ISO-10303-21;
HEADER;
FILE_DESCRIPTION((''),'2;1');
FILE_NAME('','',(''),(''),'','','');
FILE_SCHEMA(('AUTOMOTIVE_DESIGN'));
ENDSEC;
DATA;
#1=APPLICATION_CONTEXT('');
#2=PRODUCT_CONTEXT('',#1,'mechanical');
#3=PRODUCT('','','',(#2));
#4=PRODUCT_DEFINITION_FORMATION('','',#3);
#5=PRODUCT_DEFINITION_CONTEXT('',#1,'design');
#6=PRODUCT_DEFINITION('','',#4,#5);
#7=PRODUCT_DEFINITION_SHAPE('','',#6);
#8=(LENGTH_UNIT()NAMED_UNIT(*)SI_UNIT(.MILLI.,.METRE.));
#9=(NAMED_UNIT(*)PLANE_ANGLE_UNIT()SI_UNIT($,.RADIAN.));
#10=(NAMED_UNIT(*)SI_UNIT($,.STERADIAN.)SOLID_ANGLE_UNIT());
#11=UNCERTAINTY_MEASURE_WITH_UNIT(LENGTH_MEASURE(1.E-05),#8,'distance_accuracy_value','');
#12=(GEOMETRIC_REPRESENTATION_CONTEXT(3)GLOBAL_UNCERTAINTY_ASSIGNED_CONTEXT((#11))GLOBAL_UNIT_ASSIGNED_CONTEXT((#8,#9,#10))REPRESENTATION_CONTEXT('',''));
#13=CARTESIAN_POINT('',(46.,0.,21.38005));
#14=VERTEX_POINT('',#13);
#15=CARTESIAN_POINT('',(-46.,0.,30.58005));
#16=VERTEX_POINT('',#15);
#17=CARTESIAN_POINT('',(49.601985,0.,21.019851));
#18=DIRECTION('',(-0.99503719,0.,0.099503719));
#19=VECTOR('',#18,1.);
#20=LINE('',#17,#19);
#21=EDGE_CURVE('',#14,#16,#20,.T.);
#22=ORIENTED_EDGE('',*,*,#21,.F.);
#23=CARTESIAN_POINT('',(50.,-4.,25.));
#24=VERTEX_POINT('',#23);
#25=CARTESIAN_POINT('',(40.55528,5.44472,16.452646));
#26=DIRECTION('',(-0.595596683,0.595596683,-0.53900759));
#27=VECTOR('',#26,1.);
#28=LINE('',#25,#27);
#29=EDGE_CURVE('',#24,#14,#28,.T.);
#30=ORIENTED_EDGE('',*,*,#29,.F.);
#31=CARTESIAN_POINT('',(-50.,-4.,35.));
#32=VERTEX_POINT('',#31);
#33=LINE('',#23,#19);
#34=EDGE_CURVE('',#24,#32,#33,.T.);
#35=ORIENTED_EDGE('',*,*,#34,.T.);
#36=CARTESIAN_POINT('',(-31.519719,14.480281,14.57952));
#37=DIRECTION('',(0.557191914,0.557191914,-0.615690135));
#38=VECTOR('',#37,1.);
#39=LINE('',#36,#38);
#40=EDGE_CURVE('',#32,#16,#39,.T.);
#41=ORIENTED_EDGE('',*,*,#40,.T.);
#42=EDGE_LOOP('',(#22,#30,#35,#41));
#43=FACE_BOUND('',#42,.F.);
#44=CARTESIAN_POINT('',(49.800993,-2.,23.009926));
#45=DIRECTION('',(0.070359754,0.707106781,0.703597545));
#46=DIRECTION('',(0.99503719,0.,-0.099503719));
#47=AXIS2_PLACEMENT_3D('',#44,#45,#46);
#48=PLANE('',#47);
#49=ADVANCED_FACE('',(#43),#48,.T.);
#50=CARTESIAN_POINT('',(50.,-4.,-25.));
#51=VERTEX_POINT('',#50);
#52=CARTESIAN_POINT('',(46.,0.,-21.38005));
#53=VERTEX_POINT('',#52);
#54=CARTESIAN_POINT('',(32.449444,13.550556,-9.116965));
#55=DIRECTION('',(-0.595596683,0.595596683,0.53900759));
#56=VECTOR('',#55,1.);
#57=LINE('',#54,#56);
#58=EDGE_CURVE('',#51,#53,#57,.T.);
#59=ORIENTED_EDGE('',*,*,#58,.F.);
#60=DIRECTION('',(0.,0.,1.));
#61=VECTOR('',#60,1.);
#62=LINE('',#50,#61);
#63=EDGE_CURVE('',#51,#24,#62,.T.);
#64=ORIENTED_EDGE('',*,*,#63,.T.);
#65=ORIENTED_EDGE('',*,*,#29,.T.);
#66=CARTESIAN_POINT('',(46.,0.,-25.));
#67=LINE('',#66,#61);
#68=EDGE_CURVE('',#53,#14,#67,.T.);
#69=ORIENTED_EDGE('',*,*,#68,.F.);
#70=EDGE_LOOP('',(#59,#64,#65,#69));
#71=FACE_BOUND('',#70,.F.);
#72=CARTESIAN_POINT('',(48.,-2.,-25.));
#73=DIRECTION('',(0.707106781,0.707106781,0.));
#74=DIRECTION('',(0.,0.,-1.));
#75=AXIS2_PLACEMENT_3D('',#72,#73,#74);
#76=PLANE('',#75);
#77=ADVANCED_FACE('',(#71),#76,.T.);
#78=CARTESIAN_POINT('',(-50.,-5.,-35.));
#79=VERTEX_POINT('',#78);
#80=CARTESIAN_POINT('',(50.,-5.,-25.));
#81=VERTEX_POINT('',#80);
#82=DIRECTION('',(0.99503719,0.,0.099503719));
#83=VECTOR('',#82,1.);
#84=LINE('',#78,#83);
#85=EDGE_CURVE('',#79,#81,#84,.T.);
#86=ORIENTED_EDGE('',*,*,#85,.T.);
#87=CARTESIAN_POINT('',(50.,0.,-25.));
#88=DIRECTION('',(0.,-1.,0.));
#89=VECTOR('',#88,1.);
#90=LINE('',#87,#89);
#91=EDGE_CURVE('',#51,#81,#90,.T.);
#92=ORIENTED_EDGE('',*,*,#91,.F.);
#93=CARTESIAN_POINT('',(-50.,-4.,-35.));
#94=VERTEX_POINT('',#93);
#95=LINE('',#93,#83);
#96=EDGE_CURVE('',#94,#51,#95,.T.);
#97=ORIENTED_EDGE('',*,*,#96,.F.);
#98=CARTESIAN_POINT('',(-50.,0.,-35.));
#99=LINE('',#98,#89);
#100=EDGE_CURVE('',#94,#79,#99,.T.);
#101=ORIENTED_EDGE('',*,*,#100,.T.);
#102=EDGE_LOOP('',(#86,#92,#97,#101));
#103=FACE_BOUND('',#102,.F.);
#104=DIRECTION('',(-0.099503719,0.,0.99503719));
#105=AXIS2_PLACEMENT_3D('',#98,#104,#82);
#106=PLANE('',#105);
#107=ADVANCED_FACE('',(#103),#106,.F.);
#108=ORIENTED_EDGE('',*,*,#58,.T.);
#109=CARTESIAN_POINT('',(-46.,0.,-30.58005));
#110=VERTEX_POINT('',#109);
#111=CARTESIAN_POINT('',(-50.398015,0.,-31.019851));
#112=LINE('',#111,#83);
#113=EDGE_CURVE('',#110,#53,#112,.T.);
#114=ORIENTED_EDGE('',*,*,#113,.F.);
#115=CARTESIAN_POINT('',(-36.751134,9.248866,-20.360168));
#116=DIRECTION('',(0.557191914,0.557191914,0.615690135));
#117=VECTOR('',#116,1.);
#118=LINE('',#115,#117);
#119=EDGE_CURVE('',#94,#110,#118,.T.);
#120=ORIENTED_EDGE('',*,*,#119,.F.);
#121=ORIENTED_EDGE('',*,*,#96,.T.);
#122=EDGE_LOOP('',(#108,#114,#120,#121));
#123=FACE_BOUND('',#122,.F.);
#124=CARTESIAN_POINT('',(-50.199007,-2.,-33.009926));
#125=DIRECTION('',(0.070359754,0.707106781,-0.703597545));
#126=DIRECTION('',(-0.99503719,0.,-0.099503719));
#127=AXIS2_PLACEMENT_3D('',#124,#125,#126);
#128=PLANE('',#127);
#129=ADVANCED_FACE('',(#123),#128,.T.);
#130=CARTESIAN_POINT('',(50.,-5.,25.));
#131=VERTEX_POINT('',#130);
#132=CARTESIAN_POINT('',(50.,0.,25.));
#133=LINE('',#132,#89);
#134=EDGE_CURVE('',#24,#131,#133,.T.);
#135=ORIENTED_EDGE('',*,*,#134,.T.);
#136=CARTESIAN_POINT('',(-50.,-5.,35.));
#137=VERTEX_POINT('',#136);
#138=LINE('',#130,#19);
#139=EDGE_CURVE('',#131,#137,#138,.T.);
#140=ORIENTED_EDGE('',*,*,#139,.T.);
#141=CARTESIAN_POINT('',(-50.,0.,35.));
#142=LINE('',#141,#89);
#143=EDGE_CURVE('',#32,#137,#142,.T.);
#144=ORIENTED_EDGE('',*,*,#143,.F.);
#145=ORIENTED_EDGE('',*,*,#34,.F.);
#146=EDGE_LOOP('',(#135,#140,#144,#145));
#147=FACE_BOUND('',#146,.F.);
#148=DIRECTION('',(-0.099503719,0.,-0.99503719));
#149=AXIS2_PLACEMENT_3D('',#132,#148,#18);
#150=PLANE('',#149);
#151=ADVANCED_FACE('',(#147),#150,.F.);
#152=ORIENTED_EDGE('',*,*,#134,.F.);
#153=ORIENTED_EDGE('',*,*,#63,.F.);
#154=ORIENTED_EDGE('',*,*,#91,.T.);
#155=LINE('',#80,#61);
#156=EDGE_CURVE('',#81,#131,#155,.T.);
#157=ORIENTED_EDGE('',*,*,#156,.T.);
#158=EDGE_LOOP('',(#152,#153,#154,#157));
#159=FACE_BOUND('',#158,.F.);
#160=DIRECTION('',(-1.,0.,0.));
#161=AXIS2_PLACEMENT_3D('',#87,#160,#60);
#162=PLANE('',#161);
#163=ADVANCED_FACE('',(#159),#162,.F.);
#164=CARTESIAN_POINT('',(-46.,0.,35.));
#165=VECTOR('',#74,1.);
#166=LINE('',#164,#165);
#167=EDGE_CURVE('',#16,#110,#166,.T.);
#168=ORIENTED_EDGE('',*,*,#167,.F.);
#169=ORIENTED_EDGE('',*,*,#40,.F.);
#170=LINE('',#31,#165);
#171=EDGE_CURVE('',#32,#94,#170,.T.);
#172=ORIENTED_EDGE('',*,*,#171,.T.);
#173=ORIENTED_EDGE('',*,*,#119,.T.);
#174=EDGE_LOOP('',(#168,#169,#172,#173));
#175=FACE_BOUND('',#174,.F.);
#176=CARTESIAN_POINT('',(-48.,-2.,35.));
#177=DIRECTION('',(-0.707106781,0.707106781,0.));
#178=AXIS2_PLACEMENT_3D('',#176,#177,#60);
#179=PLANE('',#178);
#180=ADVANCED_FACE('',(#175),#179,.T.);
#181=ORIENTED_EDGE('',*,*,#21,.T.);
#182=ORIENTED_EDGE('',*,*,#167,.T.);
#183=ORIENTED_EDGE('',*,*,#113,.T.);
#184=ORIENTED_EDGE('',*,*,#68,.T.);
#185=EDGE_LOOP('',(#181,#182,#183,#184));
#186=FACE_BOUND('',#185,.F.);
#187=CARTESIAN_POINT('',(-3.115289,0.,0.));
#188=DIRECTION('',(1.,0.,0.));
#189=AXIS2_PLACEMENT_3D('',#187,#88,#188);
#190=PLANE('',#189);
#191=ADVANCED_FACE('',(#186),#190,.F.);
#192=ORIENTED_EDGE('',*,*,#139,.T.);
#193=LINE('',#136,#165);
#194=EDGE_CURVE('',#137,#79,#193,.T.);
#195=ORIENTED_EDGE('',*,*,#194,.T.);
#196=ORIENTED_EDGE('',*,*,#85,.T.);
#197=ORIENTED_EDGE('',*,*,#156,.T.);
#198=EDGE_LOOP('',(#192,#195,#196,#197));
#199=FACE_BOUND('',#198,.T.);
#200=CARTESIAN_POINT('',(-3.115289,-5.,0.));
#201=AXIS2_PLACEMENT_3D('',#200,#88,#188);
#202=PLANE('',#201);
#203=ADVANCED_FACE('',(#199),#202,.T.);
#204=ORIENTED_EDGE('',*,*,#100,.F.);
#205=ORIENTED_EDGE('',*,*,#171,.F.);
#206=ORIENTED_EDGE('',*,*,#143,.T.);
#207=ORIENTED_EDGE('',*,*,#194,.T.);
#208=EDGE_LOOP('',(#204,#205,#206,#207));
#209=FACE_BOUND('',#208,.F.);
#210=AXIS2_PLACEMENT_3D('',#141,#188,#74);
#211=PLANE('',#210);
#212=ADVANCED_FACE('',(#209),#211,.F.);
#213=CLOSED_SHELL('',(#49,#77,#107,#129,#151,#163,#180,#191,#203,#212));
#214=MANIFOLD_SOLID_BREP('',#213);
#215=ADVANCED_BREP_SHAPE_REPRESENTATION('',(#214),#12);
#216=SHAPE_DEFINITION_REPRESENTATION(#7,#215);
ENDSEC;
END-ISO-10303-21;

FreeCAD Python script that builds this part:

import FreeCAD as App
import Part
import Sketcher

V = App.Vector


def edges_at(feature, points):
    """Names of the edges that pass closest to the given points."""
    edges = feature.Shape.Edges
    near = lambda p: min(range(len(edges)), key=lambda i: edges[i].distToShape(Part.Vertex(*p))[0])
    return sorted({f"Edge{near(p) + 1}" for p in points})


def add_polygon(sketch, points):
    """Adds a closed chain of lines whose ends are joined by coincident constraints."""
    first, n = sketch.GeometryCount, len(points)
    for a, b in zip(points, points[1:] + points[:1]):
        sketch.addGeometry(Part.LineSegment(App.Vector(*a, 0), App.Vector(*b, 0)), False)
    for i in range(n):
        sketch.addConstraint(Sketcher.Constraint("Coincident", first + i, 2, first + (i + 1) % n, 1))

doc = App.newDocument("Part")
body = doc.addObject("PartDesign::Body", "Body")

sketch1 = doc.addObject("Sketcher::SketchObject", "Sketch")
body.addObject(sketch1)
sketch1.AttachmentSupport = (doc.XZ_Plane, [""])
sketch1.MapMode = "FlatFace"
add_polygon(sketch1, [(-50, -35), (50, -25), (50, 25), (-50, 35)])
sketch1.addConstraint(Sketcher.Constraint("Vertical", 1))
sketch1.addConstraint(Sketcher.Constraint("Vertical", 3))
sketch1.addConstraint(Sketcher.Constraint("Equal", 0, 2))
sketch1.addConstraint(Sketcher.Constraint("DistanceY", 1, 1, 1, 2, 50.0))
sketch1.addConstraint(Sketcher.Constraint("DistanceY", 3, 2, 3, 1, 70.0))
sketch1.addConstraint(Sketcher.Constraint("DistanceX", -1, 1, 0, 2, 50.0))
sketch1.addConstraint(Sketcher.Constraint("DistanceY", 0, 2, -1, 1, 25.0))
sketch1.addConstraint(Sketcher.Constraint("DistanceX", 2, 2, -1, 1, 50.0))
pad1 = doc.addObject("PartDesign::Pad", "Pad")
body.addObject(pad1)
pad1.Profile = sketch1
pad1.Length = 5
doc.recompute()

chamfer = doc.addObject("PartDesign::Chamfer", "Chamfer")
body.addObject(chamfer)
chamfer.Base = (pad1, edges_at(pad1, [
    (0, 0, 30),
    (50, 0, 0),
    (0, 0, -30),
    (-50, 0, 0),
]))
chamfer.Size = 4

doc.recompute()
